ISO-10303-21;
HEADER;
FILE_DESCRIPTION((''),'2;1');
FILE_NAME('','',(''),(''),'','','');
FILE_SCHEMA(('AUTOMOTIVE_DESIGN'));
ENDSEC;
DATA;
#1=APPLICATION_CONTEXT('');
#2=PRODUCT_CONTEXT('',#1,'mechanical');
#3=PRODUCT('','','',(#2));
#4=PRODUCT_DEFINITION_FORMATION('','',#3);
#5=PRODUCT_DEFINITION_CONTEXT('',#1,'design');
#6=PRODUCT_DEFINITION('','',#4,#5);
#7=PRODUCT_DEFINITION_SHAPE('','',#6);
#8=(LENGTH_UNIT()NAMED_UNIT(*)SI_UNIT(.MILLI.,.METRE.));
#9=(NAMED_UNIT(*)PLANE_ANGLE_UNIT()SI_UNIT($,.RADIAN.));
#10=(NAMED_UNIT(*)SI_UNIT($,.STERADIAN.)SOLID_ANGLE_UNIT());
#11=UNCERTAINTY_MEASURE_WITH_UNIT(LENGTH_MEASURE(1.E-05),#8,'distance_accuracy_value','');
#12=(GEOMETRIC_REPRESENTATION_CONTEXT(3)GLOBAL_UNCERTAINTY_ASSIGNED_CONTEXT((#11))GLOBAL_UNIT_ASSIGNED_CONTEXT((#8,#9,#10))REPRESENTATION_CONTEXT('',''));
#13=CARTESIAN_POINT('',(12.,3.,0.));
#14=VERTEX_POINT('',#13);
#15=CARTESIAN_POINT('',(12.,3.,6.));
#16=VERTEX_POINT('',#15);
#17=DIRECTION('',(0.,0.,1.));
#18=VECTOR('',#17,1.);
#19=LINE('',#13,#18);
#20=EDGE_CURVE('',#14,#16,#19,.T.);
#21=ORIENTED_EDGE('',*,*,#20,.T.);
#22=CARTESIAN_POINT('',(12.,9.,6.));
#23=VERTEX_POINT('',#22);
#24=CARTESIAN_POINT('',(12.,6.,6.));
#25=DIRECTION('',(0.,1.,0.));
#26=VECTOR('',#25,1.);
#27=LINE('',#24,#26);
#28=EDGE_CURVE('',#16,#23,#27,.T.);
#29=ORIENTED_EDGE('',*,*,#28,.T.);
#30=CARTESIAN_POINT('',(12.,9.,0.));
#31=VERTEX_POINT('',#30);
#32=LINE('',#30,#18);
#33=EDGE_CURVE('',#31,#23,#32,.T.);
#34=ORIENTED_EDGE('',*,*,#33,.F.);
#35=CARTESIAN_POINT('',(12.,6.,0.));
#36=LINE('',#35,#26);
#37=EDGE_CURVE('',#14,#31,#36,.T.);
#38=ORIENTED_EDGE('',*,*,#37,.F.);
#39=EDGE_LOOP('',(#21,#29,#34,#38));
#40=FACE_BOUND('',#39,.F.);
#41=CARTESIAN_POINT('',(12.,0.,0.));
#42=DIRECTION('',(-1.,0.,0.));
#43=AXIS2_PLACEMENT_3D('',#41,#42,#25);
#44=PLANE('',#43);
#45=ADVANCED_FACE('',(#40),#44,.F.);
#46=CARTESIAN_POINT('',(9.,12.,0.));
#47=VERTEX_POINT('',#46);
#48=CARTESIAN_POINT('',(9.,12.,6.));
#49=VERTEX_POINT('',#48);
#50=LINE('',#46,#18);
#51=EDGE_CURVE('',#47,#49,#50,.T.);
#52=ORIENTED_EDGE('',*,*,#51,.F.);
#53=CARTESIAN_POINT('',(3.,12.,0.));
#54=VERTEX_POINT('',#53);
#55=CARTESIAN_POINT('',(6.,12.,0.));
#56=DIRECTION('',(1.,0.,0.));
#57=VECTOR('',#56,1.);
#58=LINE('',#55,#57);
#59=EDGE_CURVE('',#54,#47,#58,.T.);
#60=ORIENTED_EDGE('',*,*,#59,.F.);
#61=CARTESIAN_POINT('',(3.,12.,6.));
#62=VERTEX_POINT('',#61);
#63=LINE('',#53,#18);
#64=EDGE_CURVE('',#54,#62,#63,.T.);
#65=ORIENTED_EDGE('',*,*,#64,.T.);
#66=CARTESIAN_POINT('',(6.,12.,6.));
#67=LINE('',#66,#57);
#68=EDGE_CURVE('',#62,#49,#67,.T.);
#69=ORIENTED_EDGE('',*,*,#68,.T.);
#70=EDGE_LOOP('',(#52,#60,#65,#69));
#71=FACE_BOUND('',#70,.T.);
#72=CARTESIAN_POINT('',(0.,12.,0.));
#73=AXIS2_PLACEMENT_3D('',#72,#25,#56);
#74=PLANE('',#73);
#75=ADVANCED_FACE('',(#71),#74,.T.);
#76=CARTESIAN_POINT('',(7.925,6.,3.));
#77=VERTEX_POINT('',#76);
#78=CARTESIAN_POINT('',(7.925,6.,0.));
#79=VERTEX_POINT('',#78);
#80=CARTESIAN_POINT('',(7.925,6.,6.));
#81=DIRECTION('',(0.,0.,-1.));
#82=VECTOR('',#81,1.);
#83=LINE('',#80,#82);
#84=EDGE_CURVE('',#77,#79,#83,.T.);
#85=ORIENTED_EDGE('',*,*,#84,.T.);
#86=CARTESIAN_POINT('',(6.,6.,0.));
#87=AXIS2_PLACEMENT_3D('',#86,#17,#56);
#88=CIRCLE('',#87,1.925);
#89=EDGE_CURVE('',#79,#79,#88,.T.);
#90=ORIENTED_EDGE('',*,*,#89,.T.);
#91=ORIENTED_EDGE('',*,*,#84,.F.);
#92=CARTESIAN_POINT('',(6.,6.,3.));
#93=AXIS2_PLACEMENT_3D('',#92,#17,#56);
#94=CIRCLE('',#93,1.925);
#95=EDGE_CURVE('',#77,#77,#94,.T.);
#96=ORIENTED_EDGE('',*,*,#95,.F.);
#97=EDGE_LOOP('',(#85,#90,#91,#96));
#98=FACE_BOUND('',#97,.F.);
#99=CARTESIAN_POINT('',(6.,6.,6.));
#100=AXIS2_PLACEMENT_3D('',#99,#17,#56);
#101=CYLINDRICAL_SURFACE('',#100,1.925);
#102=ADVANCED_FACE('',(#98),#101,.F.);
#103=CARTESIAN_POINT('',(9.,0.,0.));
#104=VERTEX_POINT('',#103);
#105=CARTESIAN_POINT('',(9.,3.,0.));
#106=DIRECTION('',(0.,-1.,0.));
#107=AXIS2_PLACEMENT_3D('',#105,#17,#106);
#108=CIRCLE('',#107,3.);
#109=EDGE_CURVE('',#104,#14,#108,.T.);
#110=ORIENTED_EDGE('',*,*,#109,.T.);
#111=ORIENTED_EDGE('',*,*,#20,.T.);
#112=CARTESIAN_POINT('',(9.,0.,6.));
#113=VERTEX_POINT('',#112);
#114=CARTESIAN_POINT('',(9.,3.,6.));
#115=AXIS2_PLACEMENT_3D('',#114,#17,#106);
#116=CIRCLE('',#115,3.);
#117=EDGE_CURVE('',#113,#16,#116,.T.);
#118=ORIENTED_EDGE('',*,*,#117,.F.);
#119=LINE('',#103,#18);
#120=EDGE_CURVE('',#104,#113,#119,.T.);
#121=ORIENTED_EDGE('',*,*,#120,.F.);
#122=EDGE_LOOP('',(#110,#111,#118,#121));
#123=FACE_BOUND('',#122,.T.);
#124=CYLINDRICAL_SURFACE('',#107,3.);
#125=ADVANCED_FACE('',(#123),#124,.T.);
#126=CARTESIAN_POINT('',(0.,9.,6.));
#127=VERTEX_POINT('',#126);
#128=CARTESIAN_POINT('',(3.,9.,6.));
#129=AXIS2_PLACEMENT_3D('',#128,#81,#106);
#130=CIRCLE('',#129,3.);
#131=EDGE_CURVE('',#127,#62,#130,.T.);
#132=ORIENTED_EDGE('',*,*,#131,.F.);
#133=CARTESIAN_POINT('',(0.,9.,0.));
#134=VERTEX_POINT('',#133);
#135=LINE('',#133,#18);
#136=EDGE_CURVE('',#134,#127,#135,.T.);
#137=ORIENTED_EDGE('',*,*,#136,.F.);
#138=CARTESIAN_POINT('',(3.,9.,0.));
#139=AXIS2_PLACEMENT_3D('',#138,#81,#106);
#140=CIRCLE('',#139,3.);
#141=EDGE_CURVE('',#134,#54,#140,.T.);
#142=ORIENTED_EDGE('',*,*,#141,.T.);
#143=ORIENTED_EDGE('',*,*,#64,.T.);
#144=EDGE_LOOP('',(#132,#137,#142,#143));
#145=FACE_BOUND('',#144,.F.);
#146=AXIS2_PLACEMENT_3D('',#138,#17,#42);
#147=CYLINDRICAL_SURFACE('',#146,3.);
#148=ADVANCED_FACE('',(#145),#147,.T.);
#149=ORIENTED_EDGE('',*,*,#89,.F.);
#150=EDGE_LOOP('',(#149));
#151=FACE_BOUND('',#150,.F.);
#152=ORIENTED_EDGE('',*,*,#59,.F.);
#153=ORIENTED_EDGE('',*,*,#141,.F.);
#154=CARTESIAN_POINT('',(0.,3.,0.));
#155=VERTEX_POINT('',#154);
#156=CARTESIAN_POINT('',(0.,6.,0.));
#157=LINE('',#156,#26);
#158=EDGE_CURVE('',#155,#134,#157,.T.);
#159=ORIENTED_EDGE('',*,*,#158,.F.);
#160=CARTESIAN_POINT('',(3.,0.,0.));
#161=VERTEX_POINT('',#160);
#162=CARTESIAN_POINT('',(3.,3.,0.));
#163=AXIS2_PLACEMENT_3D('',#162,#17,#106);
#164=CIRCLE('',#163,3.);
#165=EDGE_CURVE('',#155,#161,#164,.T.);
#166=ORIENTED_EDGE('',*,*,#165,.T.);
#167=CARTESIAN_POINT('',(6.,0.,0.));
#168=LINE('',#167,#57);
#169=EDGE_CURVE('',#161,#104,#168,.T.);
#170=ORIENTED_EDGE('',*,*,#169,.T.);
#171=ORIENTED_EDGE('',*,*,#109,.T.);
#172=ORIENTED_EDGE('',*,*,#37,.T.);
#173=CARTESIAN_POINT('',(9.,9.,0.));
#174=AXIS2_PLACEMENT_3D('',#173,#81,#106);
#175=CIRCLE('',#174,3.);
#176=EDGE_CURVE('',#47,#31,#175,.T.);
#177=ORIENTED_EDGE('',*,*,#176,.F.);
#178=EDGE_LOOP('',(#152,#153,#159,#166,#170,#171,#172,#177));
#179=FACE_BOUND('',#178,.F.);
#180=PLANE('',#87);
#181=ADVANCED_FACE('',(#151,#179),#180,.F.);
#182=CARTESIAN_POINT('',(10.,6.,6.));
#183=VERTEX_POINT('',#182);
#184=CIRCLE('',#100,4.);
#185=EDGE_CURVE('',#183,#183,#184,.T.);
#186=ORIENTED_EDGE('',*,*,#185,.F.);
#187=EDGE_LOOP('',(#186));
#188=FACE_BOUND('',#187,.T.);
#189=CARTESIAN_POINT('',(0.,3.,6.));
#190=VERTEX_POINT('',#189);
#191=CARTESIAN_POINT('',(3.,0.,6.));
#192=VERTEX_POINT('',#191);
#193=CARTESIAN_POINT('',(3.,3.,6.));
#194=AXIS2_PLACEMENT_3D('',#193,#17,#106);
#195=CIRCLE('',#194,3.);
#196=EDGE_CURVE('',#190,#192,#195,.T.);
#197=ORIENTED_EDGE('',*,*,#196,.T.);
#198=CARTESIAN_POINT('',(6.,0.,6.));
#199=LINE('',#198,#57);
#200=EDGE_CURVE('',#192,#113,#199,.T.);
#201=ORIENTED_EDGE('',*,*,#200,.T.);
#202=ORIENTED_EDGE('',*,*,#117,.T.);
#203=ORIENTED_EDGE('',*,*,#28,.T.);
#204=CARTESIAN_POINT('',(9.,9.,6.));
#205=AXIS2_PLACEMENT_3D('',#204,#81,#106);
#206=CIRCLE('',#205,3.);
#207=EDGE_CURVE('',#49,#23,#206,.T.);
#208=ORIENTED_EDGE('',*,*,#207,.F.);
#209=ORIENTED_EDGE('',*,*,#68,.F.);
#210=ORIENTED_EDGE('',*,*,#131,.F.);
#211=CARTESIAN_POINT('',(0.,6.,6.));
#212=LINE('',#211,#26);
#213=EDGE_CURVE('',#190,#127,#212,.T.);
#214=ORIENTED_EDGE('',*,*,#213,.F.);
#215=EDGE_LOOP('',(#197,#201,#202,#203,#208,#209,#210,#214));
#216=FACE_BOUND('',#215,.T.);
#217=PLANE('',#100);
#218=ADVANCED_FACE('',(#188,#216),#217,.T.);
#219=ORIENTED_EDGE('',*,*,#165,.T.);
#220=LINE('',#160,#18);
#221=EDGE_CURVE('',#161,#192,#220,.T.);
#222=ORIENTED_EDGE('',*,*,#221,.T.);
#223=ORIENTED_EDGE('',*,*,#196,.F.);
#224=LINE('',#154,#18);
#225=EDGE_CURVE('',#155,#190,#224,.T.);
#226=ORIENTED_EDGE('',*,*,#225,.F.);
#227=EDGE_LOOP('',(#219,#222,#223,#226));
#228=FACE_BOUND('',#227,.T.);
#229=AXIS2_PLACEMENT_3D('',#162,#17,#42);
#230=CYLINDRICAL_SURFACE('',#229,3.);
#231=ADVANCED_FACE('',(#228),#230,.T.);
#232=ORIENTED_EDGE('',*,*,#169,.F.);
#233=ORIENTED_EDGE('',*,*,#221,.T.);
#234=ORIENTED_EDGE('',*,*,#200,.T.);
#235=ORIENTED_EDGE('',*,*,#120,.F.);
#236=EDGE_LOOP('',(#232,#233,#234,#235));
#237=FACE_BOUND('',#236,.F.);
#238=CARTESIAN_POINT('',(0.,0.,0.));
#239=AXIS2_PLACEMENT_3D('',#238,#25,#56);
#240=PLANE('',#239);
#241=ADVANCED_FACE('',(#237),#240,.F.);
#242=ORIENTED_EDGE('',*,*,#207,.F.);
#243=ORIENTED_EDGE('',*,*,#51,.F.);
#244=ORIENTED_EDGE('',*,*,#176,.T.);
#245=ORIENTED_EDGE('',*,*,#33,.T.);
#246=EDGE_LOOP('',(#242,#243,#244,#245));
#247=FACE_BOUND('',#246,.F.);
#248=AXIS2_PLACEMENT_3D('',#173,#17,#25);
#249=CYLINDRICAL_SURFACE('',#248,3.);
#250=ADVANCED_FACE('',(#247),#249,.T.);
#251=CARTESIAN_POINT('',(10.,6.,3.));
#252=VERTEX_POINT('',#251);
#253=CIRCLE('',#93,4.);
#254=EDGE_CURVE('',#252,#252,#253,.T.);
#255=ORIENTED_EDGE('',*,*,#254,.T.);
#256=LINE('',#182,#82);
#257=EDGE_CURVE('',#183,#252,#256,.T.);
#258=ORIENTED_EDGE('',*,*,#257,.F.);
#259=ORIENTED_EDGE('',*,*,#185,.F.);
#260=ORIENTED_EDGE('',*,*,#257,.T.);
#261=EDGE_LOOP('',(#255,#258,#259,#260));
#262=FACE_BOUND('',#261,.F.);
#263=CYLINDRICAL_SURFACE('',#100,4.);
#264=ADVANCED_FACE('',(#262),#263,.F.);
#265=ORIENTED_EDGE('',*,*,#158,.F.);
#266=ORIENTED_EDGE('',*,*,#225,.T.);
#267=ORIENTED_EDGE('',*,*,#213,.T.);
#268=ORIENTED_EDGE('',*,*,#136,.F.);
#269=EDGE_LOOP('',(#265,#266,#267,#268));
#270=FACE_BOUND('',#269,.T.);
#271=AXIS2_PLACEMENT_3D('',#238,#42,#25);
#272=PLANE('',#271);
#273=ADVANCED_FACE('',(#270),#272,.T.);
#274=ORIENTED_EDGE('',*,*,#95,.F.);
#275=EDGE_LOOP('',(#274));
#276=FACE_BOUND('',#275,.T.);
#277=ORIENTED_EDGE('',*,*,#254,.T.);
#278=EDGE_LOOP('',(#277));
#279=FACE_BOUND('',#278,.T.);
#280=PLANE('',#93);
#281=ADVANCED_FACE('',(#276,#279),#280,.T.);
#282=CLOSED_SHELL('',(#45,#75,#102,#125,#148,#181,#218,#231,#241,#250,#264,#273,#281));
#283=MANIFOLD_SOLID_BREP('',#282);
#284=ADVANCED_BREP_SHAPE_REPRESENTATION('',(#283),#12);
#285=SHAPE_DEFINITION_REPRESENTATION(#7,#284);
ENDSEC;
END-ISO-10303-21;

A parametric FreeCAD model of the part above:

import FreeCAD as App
import Part
import Sketcher

V = App.Vector


def edges_at(feature, points):
    """Names of the edges that pass closest to the given points."""
    edges = feature.Shape.Edges
    near = lambda p: min(range(len(edges)), key=lambda i: edges[i].distToShape(Part.Vertex(*p))[0])
    return sorted({f"Edge{near(p) + 1}" for p in points})

doc = App.newDocument("Part")
params = doc.addObject("Spreadsheet::Sheet", "Params")
for row, (alias, value) in enumerate([
    ("sketch1_width", "12 mm"),
    ("pad1_length", "6 mm"),
    ("sketch2_diameter", "3.85 mm"),
    ("sketch3_diameter", "8 mm"),
    ("pocket2_length", "3 mm"),
    ("fillet_radius", "3 mm"),
], start=1):
    params.set(f"A{row}", alias)
    params.set(f"B{row}", "=" + value)
    params.setAlias(f"B{row}", alias)

body = doc.addObject("PartDesign::Body", "Body")

# Sketch on XY plane
sketch1 = body.newObject("Sketcher::SketchObject", "Sketch")
sketch1.AttachmentSupport = (doc.getObject("XY_Plane"), [""])
sketch1.MapMode = "FlatFace"
sketch1.addGeometry(Part.LineSegment(V(0, 12, 0), V(0, 0, 0)), False)
sketch1.addGeometry(Part.LineSegment(V(0, 0, 0), V(12, 0, 0)), False)
sketch1.addGeometry(Part.LineSegment(V(12, 0, 0), V(12, 12, 0)), False)
sketch1.addGeometry(Part.LineSegment(V(12, 12, 0), V(0, 12, 0)), False)
sketch1.addConstraint(Sketcher.Constraint("Coincident", 0, 2, 1, 1))
sketch1.addConstraint(Sketcher.Constraint("Coincident", 1, 2, 2, 1))
sketch1.addConstraint(Sketcher.Constraint("Coincident", 2, 2, 3, 1))
sketch1.addConstraint(Sketcher.Constraint("Coincident", 3, 2, 0, 1))
sketch1.addConstraint(Sketcher.Constraint("Vertical", 0))
sketch1.addConstraint(Sketcher.Constraint("Horizontal", 1))
sketch1.addConstraint(Sketcher.Constraint("Vertical", 2))
sketch1.addConstraint(Sketcher.Constraint("Horizontal", 3))
sketch1.addConstraint(Sketcher.Constraint("Coincident", 0, 2, -1, 1))
sketch1.addConstraint(Sketcher.Constraint("Equal", 3, 0))
sketch1.addConstraint(Sketcher.Constraint("DistanceX", 1, 1, 1, 2, 12.0))
sketch1.setExpression("Constraints[10]", "Params.sketch1_width")
pad1 = body.newObject("PartDesign::Pad", "Pad")
pad1.Profile = sketch1
pad1.setExpression("Length", "Params.pad1_length")

# Sketch on XY plane
sketch2 = body.newObject("Sketcher::SketchObject", "Sketch001")
sketch2.AttachmentSupport = (doc.getObject("XY_Plane"), [""])
sketch2.MapMode = "FlatFace"
sketch2.AttachmentOffset = App.Placement(V(0, 0, 6), App.Rotation())
sketch2.addGeometry(Part.Circle(V(6, 6, 0), V(0, 0, 1), 1.9), False)
sketch2.addConstraint(Sketcher.Constraint("Diameter", 0, 3.85))
sketch2.addConstraint(Sketcher.Constraint("DistanceX", -1, 1, 0, 3, 6.0))
sketch2.addConstraint(Sketcher.Constraint("DistanceY", -1, 1, 0, 3, 6.0))
sketch2.setExpression("Constraints[0]", "Params.sketch2_diameter")
pocket1 = body.newObject("PartDesign::Pocket", "Pocket")
pocket1.Profile = sketch2
pocket1.Type = "ThroughAll"

# Sketch on XY plane
sketch3 = body.newObject("Sketcher::SketchObject", "Sketch002")
sketch3.AttachmentSupport = (doc.getObject("XY_Plane"), [""])
sketch3.MapMode = "FlatFace"
sketch3.AttachmentOffset = App.Placement(V(0, 0, 6), App.Rotation())
sketch3.addGeometry(Part.Circle(V(6, 6, 0), V(0, 0, 1), 4), False)
sketch3.addConstraint(Sketcher.Constraint("Diameter", 0, 8.0))
sketch3.addConstraint(Sketcher.Constraint("DistanceX", -1, 1, 0, 3, 6.0))
sketch3.addConstraint(Sketcher.Constraint("DistanceY", -1, 1, 0, 3, 6.0))
sketch3.setExpression("Constraints[0]", "Params.sketch3_diameter")
pocket2 = body.newObject("PartDesign::Pocket", "Pocket001")
pocket2.Profile = sketch3
pocket2.setExpression("Length", "Params.pocket2_length")
doc.recompute()

fillet = body.newObject("PartDesign::Fillet", "Fillet")
fillet.Base = (pocket2, edges_at(pocket2, [
    (0, 0, 3),
    (12, 0, 3),
    (12, 12, 3),
    (0, 12, 3),
]))
fillet.setExpression("Radius", "Params.fillet_radius")

doc.recompute()
